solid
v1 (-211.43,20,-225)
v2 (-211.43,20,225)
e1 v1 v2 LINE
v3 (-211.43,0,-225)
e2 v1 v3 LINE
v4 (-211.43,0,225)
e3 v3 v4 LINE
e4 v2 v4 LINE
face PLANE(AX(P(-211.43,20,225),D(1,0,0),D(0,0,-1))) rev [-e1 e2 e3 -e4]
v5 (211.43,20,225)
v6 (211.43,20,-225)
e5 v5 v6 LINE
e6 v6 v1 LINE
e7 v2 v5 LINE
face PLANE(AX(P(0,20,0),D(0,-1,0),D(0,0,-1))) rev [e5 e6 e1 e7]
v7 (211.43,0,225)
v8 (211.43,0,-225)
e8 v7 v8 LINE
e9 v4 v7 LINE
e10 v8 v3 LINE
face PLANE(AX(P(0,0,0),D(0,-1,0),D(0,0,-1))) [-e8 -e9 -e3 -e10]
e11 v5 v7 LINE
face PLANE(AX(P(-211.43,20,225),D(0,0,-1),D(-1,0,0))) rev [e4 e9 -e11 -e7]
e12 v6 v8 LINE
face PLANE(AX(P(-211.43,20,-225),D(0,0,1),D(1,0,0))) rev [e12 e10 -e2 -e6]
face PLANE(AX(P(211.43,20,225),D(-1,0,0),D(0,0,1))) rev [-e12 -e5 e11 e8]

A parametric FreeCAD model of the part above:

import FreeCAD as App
import Part
import Sketcher

V = App.Vector


def add_polygon(sketch, points):
    """Adds a closed chain of lines whose ends are joined by coincident constraints."""
    first, n = sketch.GeometryCount, len(points)
    for a, b in zip(points, points[1:] + points[:1]):
        sketch.addGeometry(Part.LineSegment(App.Vector(*a, 0), App.Vector(*b, 0)), False)
    for i in range(n):
        sketch.addConstraint(Sketcher.Constraint("Coincident", first + i, 2, first + (i + 1) % n, 1))

doc = App.newDocument("Part")
params = doc.addObject("Spreadsheet::Sheet", "Params")
for row, (alias, value) in enumerate([
    ("sketch1_height", "450 mm"),
    ("sketch1_width", "422.86 mm"),
    ("pad1_length", "20 mm"),
], start=1):
    params.set(f"A{row}", alias)
    params.set(f"B{row}", "=" + value)
    params.setAlias(f"B{row}", alias)

body = doc.addObject("PartDesign::Body", "Body")

sketch1 = doc.addObject("Sketcher::SketchObject", "Sketch")
body.addObject(sketch1)
sketch1.AttachmentSupport = (doc.XZ_Plane, [""])
sketch1.MapMode = "FlatFace"
add_polygon(sketch1, [(-211, -225), (-211, 225), (211, 225), (211, -225)])
sketch1.addConstraint(Sketcher.Constraint("Vertical", 0))
sketch1.addConstraint(Sketcher.Constraint("Horizontal", 1))
sketch1.addConstraint(Sketcher.Constraint("Vertical", 2))
sketch1.addConstraint(Sketcher.Constraint("Horizontal", 3))
sketch1.addConstraint(Sketcher.Constraint("Symmetric", 0, 2, 2, 2, -1, 1))
sketch1.addConstraint(Sketcher.Constraint("DistanceY", 0, 1, 0, 2, 450.0))
sketch1.addConstraint(Sketcher.Constraint("DistanceX", 1, 1, 1, 2, 422.86))
sketch1.setExpression("Constraints[9]", "Params.sketch1_height")
sketch1.setExpression("Constraints[10]", "Params.sketch1_width")
pad1 = doc.addObject("PartDesign::Pad", "Pad")
body.addObject(pad1)
pad1.Profile = sketch1
pad1.setExpression("Length", "Params.pad1_length")
pad1.Reversed = True

doc.recompute()
